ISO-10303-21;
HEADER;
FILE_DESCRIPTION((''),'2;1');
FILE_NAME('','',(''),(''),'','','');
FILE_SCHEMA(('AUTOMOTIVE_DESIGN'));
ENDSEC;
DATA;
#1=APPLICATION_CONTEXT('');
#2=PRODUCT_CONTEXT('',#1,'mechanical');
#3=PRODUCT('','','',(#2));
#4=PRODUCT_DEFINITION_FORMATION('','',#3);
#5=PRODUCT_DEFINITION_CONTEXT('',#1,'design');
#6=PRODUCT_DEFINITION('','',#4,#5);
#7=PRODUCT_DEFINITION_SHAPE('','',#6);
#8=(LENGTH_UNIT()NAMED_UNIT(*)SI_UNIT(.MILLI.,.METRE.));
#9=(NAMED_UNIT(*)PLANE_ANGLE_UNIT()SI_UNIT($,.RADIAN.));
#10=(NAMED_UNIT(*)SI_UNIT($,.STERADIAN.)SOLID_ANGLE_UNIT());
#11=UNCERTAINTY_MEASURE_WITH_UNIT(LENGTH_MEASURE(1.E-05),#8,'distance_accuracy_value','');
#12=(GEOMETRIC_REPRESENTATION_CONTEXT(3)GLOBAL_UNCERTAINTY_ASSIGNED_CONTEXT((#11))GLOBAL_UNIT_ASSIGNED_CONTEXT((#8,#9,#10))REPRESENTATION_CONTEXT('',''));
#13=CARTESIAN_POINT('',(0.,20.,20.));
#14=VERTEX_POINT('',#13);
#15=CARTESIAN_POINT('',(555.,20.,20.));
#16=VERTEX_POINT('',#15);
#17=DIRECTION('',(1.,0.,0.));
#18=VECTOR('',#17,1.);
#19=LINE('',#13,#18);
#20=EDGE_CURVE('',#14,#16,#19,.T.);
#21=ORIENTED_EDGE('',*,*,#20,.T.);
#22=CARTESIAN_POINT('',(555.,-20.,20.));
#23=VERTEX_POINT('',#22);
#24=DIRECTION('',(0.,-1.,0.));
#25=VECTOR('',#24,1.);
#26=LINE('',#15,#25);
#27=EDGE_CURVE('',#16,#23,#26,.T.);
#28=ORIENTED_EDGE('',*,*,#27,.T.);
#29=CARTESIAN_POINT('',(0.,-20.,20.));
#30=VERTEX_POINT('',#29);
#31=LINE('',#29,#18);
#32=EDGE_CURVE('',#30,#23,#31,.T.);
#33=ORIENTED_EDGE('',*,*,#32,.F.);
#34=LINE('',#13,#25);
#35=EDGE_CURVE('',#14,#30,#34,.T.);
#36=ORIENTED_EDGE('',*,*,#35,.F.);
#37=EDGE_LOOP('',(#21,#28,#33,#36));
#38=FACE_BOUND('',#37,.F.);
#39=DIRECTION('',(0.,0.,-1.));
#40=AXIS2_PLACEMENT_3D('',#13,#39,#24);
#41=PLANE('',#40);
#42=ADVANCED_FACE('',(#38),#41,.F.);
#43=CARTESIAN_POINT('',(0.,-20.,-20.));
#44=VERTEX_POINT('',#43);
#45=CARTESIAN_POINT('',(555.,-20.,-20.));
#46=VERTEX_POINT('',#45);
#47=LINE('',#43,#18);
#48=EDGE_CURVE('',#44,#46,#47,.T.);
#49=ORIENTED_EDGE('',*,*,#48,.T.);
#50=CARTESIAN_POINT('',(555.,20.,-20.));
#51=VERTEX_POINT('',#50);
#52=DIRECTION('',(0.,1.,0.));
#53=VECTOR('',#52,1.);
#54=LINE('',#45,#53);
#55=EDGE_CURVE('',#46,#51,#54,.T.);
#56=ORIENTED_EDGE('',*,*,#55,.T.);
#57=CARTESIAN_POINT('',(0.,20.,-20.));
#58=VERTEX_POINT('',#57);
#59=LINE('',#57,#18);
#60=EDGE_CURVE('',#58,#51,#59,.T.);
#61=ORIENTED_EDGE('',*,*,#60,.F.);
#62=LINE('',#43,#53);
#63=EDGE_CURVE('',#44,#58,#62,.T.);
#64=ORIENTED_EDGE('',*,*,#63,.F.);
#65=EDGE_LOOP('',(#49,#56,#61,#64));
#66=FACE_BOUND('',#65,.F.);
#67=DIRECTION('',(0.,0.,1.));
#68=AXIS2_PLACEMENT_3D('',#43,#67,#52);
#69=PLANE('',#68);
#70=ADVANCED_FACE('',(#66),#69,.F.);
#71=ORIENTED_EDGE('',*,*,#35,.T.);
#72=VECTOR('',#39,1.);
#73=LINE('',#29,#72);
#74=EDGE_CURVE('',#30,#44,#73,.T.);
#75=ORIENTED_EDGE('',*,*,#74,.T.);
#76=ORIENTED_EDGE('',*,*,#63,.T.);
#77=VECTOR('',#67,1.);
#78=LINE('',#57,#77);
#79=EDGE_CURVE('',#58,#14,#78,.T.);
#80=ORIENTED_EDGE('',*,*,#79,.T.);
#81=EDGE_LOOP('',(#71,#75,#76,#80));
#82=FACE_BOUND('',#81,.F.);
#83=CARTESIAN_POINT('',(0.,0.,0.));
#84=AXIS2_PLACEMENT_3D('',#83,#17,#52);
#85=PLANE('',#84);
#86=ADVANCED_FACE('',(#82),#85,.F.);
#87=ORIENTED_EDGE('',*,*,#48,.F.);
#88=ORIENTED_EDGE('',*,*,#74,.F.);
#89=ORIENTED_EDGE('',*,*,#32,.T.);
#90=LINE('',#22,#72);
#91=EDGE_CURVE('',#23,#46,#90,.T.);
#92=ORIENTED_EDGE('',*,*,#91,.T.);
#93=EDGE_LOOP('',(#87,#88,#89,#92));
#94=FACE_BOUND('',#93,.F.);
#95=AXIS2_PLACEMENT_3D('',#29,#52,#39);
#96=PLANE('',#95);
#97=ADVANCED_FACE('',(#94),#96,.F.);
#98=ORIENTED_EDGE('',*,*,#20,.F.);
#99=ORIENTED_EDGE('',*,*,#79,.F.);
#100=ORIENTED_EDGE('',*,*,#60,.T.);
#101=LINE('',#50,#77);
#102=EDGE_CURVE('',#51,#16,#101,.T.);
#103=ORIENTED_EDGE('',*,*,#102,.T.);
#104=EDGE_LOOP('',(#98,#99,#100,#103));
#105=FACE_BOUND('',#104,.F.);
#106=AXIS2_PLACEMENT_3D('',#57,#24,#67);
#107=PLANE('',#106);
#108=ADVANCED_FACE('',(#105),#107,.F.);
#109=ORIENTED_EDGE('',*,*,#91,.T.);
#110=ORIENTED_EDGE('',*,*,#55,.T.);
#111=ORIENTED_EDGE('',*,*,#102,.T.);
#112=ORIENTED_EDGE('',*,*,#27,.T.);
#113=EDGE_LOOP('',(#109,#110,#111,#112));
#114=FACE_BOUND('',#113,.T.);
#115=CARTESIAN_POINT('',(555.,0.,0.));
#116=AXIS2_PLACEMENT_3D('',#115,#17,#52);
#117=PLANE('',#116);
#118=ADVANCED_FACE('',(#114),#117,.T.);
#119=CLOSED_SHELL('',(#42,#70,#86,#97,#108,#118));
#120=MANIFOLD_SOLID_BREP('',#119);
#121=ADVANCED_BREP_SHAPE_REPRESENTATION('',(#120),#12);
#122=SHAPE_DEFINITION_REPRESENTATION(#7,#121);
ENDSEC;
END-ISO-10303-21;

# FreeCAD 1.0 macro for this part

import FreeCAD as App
import Part
import Sketcher

V = App.Vector
Q = App.Units.Quantity

doc = App.newDocument("Part")
body = doc.addObject("PartDesign::Body", "Body")

sketch1 = doc.addObject("Sketcher::SketchObject", "Sketch")
body.addObject(sketch1)
sketch1.AttachmentSupport = (doc.YZ_Plane, [""])
sketch1.MapMode = "FlatFace"
sketch1.addGeometry([
    Part.LineSegment(V(20, -20, 0), V(20, 20, 0)),
    Part.LineSegment(V(20, 20, 0), V(-20, 20, 0)),
    Part.LineSegment(V(-20, 20, 0), V(-20, -20, 0)),
    Part.LineSegment(V(-20, -20, 0), V(20, -20, 0)),
], False)
sketch1.addConstraint([
    Sketcher.Constraint("Coincident", 0, 2, 1, 1),
    Sketcher.Constraint("Coincident", 1, 2, 2, 1),
    Sketcher.Constraint("Coincident", 2, 2, 3, 1),
    Sketcher.Constraint("Coincident", 3, 2, 0, 1),
    Sketcher.Constraint("Vertical", 0),
    Sketcher.Constraint("Horizontal", 1),
    Sketcher.Constraint("Vertical", 2),
    Sketcher.Constraint("Horizontal", 3),
    Sketcher.Constraint("Symmetric", 0, 2, 2, 2, -1, 1),
    Sketcher.Constraint("Equal", 3, 0),
    Sketcher.Constraint("DistanceX", 1, 2, 1, 1, Q("40 mm")),
])
pad1 = doc.addObject("PartDesign::Pad", "Pad")
body.addObject(pad1)
pad1.Profile = sketch1
pad1.Length = 555

doc.recompute()
